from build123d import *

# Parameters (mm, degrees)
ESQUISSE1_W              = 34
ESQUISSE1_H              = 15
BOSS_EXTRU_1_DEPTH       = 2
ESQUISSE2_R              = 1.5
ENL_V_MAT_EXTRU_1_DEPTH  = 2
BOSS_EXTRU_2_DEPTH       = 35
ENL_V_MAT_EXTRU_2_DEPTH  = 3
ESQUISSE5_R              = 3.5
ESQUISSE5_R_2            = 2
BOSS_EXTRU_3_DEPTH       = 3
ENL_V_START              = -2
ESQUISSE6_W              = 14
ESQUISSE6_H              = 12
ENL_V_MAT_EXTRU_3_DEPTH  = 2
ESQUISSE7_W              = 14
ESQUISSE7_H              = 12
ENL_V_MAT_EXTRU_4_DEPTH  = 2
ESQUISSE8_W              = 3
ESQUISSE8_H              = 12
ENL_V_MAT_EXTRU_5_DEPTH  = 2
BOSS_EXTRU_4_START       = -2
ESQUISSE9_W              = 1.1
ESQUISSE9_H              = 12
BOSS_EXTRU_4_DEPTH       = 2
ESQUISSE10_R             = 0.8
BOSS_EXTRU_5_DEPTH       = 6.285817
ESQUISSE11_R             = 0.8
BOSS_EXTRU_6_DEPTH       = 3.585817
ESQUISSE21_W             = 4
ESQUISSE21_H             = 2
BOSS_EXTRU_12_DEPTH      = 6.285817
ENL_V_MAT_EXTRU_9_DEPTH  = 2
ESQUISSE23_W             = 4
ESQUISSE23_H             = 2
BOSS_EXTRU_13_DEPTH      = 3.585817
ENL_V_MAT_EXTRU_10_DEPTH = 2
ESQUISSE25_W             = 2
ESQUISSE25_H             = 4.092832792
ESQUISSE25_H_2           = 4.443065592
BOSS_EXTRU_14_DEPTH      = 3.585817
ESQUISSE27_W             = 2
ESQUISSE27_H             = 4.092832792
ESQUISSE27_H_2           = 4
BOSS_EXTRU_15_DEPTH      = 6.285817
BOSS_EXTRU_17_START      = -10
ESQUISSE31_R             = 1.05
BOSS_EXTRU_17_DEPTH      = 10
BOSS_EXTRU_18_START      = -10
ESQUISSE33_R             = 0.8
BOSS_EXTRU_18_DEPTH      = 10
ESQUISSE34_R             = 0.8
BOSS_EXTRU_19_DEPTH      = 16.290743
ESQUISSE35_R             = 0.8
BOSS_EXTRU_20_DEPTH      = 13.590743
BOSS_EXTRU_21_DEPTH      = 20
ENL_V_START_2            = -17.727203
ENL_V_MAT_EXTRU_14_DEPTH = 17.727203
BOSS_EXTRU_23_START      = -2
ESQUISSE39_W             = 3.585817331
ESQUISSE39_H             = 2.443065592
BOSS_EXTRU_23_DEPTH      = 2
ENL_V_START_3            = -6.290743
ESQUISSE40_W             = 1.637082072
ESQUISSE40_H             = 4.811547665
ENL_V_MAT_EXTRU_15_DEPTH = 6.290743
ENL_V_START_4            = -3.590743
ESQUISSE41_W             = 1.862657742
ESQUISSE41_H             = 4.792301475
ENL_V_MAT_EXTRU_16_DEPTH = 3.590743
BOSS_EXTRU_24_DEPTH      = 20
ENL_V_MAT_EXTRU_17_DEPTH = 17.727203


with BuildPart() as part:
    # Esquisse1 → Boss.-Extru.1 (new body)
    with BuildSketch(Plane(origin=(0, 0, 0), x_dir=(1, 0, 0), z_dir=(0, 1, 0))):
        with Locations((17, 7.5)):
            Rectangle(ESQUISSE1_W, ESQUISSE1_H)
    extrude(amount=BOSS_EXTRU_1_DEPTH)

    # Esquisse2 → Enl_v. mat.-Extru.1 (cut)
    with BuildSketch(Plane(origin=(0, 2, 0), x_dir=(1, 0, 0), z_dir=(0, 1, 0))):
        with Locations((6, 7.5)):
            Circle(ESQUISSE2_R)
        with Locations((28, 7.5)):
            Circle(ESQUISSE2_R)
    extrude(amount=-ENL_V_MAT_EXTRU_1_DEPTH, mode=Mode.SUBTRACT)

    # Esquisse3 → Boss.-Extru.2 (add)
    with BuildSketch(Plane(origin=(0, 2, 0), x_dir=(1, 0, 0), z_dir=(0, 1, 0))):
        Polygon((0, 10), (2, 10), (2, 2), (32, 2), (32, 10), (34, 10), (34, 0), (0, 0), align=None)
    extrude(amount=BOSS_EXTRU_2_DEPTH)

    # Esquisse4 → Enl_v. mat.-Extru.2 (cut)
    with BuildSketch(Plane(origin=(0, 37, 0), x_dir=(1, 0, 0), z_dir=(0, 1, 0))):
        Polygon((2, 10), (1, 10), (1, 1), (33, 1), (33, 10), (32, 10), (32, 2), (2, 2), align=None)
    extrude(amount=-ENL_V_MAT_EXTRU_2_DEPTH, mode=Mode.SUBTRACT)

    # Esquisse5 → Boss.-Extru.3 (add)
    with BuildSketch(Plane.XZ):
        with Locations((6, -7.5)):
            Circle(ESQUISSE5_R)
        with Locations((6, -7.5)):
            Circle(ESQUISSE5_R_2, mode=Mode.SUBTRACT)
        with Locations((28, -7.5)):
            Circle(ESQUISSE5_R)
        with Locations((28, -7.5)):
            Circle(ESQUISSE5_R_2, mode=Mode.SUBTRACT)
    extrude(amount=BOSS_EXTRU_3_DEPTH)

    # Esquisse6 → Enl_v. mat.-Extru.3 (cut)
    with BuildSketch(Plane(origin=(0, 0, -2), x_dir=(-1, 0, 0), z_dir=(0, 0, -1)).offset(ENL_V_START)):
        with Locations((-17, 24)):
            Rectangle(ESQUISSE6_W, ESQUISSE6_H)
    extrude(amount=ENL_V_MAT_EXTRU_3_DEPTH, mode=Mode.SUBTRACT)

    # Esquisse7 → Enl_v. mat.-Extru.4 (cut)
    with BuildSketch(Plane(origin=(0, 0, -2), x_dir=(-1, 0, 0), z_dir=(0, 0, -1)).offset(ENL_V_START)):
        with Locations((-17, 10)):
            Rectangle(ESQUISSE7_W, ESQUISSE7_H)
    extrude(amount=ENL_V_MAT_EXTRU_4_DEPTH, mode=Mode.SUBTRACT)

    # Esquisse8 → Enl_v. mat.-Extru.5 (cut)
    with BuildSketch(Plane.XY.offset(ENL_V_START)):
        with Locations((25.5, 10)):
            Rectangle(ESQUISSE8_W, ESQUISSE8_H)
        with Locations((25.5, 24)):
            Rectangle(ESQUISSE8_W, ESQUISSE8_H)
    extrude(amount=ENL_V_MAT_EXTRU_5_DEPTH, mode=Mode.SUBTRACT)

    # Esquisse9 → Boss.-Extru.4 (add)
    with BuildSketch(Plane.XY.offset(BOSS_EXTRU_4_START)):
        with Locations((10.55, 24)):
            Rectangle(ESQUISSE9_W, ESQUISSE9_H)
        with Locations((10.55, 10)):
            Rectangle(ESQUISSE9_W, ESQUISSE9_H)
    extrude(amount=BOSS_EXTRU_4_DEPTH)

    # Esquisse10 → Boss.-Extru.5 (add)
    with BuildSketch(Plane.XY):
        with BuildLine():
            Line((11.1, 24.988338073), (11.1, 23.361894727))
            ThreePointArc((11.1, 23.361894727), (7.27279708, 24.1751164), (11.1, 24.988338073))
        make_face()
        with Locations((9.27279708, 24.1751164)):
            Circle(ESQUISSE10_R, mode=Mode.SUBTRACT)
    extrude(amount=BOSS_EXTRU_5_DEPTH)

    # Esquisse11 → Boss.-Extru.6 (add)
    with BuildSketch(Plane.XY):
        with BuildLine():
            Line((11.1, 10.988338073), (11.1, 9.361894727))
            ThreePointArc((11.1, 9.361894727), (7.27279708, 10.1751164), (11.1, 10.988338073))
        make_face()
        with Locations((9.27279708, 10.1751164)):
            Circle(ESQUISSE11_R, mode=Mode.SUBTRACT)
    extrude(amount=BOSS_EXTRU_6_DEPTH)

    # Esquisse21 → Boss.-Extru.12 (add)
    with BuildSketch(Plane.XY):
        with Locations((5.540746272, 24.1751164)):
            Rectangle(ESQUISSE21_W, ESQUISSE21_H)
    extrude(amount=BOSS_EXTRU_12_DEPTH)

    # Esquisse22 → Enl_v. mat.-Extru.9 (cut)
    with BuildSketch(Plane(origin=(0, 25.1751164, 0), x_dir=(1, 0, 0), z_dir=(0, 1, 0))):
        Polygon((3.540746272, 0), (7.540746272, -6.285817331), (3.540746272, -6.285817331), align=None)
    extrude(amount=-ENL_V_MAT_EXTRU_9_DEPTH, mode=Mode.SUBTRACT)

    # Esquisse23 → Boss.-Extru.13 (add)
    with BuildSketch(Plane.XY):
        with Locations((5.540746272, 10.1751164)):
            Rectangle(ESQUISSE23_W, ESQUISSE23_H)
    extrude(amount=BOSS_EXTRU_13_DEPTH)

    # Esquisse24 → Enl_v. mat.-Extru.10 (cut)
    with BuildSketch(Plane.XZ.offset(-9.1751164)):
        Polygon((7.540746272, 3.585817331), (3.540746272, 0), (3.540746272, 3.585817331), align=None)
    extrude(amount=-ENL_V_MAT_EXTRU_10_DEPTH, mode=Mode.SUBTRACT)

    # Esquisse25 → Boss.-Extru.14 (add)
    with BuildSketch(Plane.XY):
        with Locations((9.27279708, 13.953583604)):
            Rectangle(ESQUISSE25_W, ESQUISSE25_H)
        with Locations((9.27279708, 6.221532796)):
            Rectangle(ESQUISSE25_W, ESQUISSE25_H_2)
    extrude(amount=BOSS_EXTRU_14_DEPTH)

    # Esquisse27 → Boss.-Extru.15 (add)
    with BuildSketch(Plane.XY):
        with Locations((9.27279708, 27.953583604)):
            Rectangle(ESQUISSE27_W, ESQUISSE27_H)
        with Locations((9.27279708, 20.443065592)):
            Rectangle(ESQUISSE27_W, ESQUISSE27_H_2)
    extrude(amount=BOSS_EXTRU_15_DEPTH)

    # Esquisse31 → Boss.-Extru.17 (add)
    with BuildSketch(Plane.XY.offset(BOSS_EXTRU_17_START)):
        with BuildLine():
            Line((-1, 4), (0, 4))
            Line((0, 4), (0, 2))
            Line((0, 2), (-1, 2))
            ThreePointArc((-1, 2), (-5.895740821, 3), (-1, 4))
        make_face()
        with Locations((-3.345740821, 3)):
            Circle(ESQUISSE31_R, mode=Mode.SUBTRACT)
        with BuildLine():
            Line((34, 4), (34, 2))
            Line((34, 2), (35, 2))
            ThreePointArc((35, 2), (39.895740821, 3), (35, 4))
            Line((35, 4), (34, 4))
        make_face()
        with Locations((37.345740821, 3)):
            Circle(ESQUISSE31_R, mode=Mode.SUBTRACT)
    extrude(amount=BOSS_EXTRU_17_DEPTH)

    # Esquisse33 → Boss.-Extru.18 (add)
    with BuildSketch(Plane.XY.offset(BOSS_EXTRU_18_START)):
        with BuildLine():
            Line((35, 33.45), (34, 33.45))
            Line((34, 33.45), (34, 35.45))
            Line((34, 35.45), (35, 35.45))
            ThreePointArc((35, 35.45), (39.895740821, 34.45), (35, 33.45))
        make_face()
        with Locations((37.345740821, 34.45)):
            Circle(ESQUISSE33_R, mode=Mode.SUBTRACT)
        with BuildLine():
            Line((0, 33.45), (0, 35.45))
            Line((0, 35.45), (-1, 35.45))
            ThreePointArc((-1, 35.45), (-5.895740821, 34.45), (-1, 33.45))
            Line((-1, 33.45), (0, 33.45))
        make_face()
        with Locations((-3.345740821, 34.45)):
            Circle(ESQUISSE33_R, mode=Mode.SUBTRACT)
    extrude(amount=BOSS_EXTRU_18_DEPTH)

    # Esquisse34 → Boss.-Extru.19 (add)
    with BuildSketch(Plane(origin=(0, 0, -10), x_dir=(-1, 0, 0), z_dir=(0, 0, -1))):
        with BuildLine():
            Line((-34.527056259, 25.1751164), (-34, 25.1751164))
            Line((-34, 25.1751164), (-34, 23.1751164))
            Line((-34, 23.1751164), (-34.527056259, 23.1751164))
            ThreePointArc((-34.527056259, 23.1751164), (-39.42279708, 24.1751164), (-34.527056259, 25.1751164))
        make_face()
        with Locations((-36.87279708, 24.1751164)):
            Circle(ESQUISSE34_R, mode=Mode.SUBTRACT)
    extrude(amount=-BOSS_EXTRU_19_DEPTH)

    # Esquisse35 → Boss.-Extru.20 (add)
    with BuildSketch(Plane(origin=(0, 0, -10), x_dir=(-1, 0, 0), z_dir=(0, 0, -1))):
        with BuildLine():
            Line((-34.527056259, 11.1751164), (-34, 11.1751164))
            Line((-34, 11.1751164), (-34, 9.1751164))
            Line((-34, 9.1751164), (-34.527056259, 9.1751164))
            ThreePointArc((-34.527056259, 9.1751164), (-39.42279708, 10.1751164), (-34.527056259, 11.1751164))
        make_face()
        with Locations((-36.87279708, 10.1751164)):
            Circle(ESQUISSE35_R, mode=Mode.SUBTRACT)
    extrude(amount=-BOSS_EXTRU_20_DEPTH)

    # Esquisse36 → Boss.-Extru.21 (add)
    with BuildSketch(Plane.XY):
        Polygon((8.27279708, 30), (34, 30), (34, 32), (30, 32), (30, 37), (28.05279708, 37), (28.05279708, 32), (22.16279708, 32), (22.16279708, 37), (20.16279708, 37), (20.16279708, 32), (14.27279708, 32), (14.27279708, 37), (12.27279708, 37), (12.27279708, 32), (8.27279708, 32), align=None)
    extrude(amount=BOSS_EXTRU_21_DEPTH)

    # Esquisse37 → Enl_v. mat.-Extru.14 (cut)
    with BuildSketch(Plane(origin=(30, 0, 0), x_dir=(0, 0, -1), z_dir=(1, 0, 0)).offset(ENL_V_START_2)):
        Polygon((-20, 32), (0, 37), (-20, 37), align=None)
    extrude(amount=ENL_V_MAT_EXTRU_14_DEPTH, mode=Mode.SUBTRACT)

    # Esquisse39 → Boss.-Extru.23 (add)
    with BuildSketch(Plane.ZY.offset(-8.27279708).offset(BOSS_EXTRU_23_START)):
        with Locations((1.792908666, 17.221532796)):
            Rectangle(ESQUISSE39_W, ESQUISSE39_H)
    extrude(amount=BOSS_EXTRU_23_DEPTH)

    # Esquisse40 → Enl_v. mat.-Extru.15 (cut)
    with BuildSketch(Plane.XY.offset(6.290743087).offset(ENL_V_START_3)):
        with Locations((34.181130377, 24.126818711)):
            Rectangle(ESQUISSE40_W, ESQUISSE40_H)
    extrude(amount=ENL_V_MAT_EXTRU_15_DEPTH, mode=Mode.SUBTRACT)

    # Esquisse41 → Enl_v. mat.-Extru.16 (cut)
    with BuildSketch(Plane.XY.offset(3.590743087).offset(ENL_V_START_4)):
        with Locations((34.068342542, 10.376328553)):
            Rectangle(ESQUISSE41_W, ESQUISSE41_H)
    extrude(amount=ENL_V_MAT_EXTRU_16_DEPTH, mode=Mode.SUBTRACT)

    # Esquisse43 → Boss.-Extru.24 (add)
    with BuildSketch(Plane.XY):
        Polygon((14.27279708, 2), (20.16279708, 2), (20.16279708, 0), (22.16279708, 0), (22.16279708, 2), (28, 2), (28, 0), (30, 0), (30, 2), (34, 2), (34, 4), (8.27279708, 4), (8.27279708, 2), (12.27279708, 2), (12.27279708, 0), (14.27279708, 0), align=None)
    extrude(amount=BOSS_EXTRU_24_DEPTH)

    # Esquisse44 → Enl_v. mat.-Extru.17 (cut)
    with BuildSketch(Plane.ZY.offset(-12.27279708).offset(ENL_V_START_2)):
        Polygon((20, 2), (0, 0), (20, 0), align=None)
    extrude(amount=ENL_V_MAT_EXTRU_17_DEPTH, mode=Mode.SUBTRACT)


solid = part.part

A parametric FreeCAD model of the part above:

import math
import FreeCAD as App
import Part
import Sketcher


def add_polygon(sketch, points):
    """Adds a closed chain of lines whose ends are joined by coincident constraints."""
    first, n = sketch.GeometryCount, len(points)
    for a, b in zip(points, points[1:] + points[:1]):
        sketch.addGeometry(Part.LineSegment(App.Vector(*a, 0), App.Vector(*b, 0)), False)
    for i in range(n):
        sketch.addConstraint(Sketcher.Constraint("Coincident", first + i, 2, first + (i + 1) % n, 1))

doc = App.newDocument("Part")
body = doc.addObject("PartDesign::Body", "Body")

# Sketch on XZ plane
sketch1 = body.newObject("Sketcher::SketchObject", "Sketch")
sketch1.AttachmentSupport = (doc.getObject("XZ_Plane"), [""])
sketch1.MapMode = "FlatFace"
add_polygon(sketch1, [(0, -15), (0, 0), (34, 0), (34, -15)])  # lines 0-3
sketch1.addConstraint(Sketcher.Constraint("Vertical", 0))
sketch1.addConstraint(Sketcher.Constraint("Horizontal", 1))
sketch1.addConstraint(Sketcher.Constraint("Vertical", 2))
sketch1.addConstraint(Sketcher.Constraint("Horizontal", 3))
sketch1.addConstraint(Sketcher.Constraint("Coincident", 0, 2, -1, 1))
sketch1.addConstraint(Sketcher.Constraint("DistanceX", 1, 1, 1, 2, 34.0))
sketch1.addConstraint(Sketcher.Constraint("DistanceY", 0, 1, 0, 2, 15.0))
pad1 = body.newObject("PartDesign::Pad", "Pad")
pad1.Profile = sketch1
pad1.Length = 2
pad1.Reversed = True

# Sketch on XZ plane
sketch2 = body.newObject("Sketcher::SketchObject", "Sketch001")
sketch2.AttachmentSupport = (doc.getObject("XZ_Plane"), [""])
sketch2.MapMode = "FlatFace"
sketch2.AttachmentOffset = App.Placement(App.Vector(0, 0, -2), App.Rotation())
sketch2.addGeometry(Part.Circle(App.Vector(6, -7.5, 0), App.Vector(0, 0, 1), 1.5), False)
sketch2.addGeometry(Part.Circle(App.Vector(28, -7.5, 0), App.Vector(0, 0, 1), 1.5), False)
sketch2.addConstraint(Sketcher.Constraint("Equal", 0, 1))
sketch2.addConstraint(Sketcher.Constraint("Horizontal", 0, 3, 1, 3))
sketch2.addConstraint(Sketcher.Constraint("Diameter", 0, 3.0))
sketch2.addConstraint(Sketcher.Constraint("DistanceX", -1, 1, 0, 3, 6.0))
sketch2.addConstraint(Sketcher.Constraint("DistanceX", -1, 1, 1, 3, 28.0))
sketch2.addConstraint(Sketcher.Constraint("DistanceY", 0, 3, -1, 1, 7.5))
pocket1 = body.newObject("PartDesign::Pocket", "Pocket")
pocket1.Profile = sketch2
pocket1.Length = 2
pocket1.Reversed = True

# Sketch on XZ plane
sketch3 = body.newObject("Sketcher::SketchObject", "Sketch002")
sketch3.AttachmentSupport = (doc.getObject("XZ_Plane"), [""])
sketch3.MapMode = "FlatFace"
sketch3.AttachmentOffset = App.Placement(App.Vector(0, 0, -2), App.Rotation())
add_polygon(sketch3, [(2, -10), (0, -10), (0, 0), (34, 0), (34, -10), (32, -10), (32, -2), (2, -2)])  # lines 0-7
sketch3.addConstraint(Sketcher.Constraint("Horizontal", 0))
sketch3.addConstraint(Sketcher.Constraint("Vertical", 1))
sketch3.addConstraint(Sketcher.Constraint("Horizontal", 2))
sketch3.addConstraint(Sketcher.Constraint("Vertical", 3))
sketch3.addConstraint(Sketcher.Constraint("Horizontal", 4))
sketch3.addConstraint(Sketcher.Constraint("Vertical", 5))
sketch3.addConstraint(Sketcher.Constraint("Horizontal", 6))
sketch3.addConstraint(Sketcher.Constraint("Vertical", 7))
sketch3.addConstraint(Sketcher.Constraint("Coincident", 1, 2, -1, 1))
sketch3.addConstraint(Sketcher.Constraint("Horizontal", 0, 2, 3, 2))
sketch3.addConstraint(Sketcher.Constraint("Equal", 0, 4))
sketch3.addConstraint(Sketcher.Constraint("DistanceX", 0, 2, 0, 1, 2.0))
sketch3.addConstraint(Sketcher.Constraint("DistanceX", 2, 1, 2, 2, 34.0))
sketch3.addConstraint(Sketcher.Constraint("DistanceY", 1, 1, 1, 2, 10.0))
sketch3.addConstraint(Sketcher.Constraint("DistanceY", 5, 1, 5, 2, 8.0))
pad2 = body.newObject("PartDesign::Pad", "Pad001")
pad2.Profile = sketch3
pad2.Length = 35
pad2.Reversed = True

# Sketch on XZ plane
sketch4 = body.newObject("Sketcher::SketchObject", "Sketch003")
sketch4.AttachmentSupport = (doc.getObject("XZ_Plane"), [""])
sketch4.MapMode = "FlatFace"
sketch4.AttachmentOffset = App.Placement(App.Vector(0, 0, -37), App.Rotation())
add_polygon(sketch4, [(2, -10), (1, -10), (1, -1), (33, -1), (33, -10), (32, -10), (32, -2), (2, -2)])  # lines 0-7
sketch4.addConstraint(Sketcher.Constraint("Horizontal", 0))
sketch4.addConstraint(Sketcher.Constraint("Vertical", 1))
sketch4.addConstraint(Sketcher.Constraint("Horizontal", 2))
sketch4.addConstraint(Sketcher.Constraint("Vertical", 3))
sketch4.addConstraint(Sketcher.Constraint("Horizontal", 4))
sketch4.addConstraint(Sketcher.Constraint("Vertical", 5))
sketch4.addConstraint(Sketcher.Constraint("Horizontal", 6))
sketch4.addConstraint(Sketcher.Constraint("Vertical", 7))
sketch4.addConstraint(Sketcher.Constraint("Horizontal", 0, 2, 3, 2))
sketch4.addConstraint(Sketcher.Constraint("Equal", 0, 4))
sketch4.addConstraint(Sketcher.Constraint("DistanceX", 0, 2, 0, 1, 1.0))
sketch4.addConstraint(Sketcher.Constraint("DistanceX", 2, 1, 2, 2, 32.0))
sketch4.addConstraint(Sketcher.Constraint("DistanceY", 1, 1, 1, 2, 9.0))
sketch4.addConstraint(Sketcher.Constraint("DistanceY", 5, 1, 5, 2, 8.0))
sketch4.addConstraint(Sketcher.Constraint("DistanceX", -1, 1, 0, 2, 1.0))
sketch4.addConstraint(Sketcher.Constraint("DistanceY", 0, 2, -1, 1, 10.0))
pocket2 = body.newObject("PartDesign::Pocket", "Pocket001")
pocket2.Profile = sketch4
pocket2.Length = 3
pocket2.Reversed = True

# Sketch on XZ plane
sketch5 = body.newObject("Sketcher::SketchObject", "Sketch004")
sketch5.AttachmentSupport = (doc.getObject("XZ_Plane"), [""])
sketch5.MapMode = "FlatFace"
sketch5.addGeometry(Part.Circle(App.Vector(6, -7.5, 0), App.Vector(0, 0, 1), 3.5), False)
sketch5.addGeometry(Part.Circle(App.Vector(6, -7.5, 0), App.Vector(0, 0, 1), 2), False)
sketch5.addGeometry(Part.Circle(App.Vector(28, -7.5, 0), App.Vector(0, 0, 1), 3.5), False)
sketch5.addGeometry(Part.Circle(App.Vector(28, -7.5, 0), App.Vector(0, 0, 1), 2), False)
sketch5.addConstraint(Sketcher.Constraint("Coincident", 1, 3, 0, 3))
sketch5.addConstraint(Sketcher.Constraint("Coincident", 3, 3, 2, 3))
sketch5.addConstraint(Sketcher.Constraint("Equal", 0, 2))
sketch5.addConstraint(Sketcher.Constraint("Equal", 1, 3))
sketch5.addConstraint(Sketcher.Constraint("Horizontal", 1, 3, 2, 3))
sketch5.addConstraint(Sketcher.Constraint("Diameter", 0, 7.0))
sketch5.addConstraint(Sketcher.Constraint("Diameter", 1, 4.0))
sketch5.addConstraint(Sketcher.Constraint("DistanceX", -1, 1, 0, 3, 6.0))
sketch5.addConstraint(Sketcher.Constraint("DistanceX", -1, 1, 2, 3, 28.0))
sketch5.addConstraint(Sketcher.Constraint("DistanceY", 0, 3, -1, 1, 7.5))
pad3 = body.newObject("PartDesign::Pad", "Pad002")
pad3.Profile = sketch5
pad3.Length = 3

# Sketch on XY plane
sketch6 = body.newObject("Sketcher::SketchObject", "Sketch005")
sketch6.AttachmentSupport = (doc.getObject("XY_Plane"), [""])
sketch6.MapMode = "FlatFace"
add_polygon(sketch6, [(24, 30), (24, 18), (10, 18), (10, 30)])  # lines 0-3
sketch6.addConstraint(Sketcher.Constraint("Vertical", 0))
sketch6.addConstraint(Sketcher.Constraint("Horizontal", 1))
sketch6.addConstraint(Sketcher.Constraint("Vertical", 2))
sketch6.addConstraint(Sketcher.Constraint("Horizontal", 3))
sketch6.addConstraint(Sketcher.Constraint("DistanceX", 1, 2, 1, 1, 14.0))
sketch6.addConstraint(Sketcher.Constraint("DistanceY", 0, 2, 0, 1, 12.0))
sketch6.addConstraint(Sketcher.Constraint("DistanceX", -1, 1, 0, 2, 24.0))
sketch6.addConstraint(Sketcher.Constraint("DistanceY", -1, 1, 0, 2, 18.0))
pocket3 = body.newObject("PartDesign::Pocket", "Pocket002")
pocket3.Profile = sketch6
pocket3.Length = 2

# Sketch on XY plane
sketch7 = body.newObject("Sketcher::SketchObject", "Sketch006")
sketch7.AttachmentSupport = (doc.getObject("XY_Plane"), [""])
sketch7.MapMode = "FlatFace"
add_polygon(sketch7, [(24, 16), (24, 4), (10, 4), (10, 16)])  # lines 0-3
sketch7.addConstraint(Sketcher.Constraint("Vertical", 0))
sketch7.addConstraint(Sketcher.Constraint("Horizontal", 1))
sketch7.addConstraint(Sketcher.Constraint("Vertical", 2))
sketch7.addConstraint(Sketcher.Constraint("Horizontal", 3))
sketch7.addConstraint(Sketcher.Constraint("DistanceX", 1, 2, 1, 1, 14.0))
sketch7.addConstraint(Sketcher.Constraint("DistanceY", 0, 2, 0, 1, 12.0))
sketch7.addConstraint(Sketcher.Constraint("DistanceX", -1, 1, 0, 2, 24.0))
sketch7.addConstraint(Sketcher.Constraint("DistanceY", -1, 1, 0, 2, 4.0))
pocket4 = body.newObject("PartDesign::Pocket", "Pocket003")
pocket4.Profile = sketch7
pocket4.Length = 2

# Sketch on XY plane
sketch8 = body.newObject("Sketcher::SketchObject", "Sketch007")
sketch8.AttachmentSupport = (doc.getObject("XY_Plane"), [""])
sketch8.MapMode = "FlatFace"
sketch8.AttachmentOffset = App.Placement(App.Vector(0, 0, -2), App.Rotation())
add_polygon(sketch8, [(24, 16), (24, 4), (27, 4), (27, 16)])  # lines 0-3
add_polygon(sketch8, [(24, 30), (24, 18), (27, 18), (27, 30)])  # lines 4-7
sketch8.addConstraint(Sketcher.Constraint("Vertical", 0))
sketch8.addConstraint(Sketcher.Constraint("Horizontal", 1))
sketch8.addConstraint(Sketcher.Constraint("Vertical", 2))
sketch8.addConstraint(Sketcher.Constraint("Horizontal", 3))
sketch8.addConstraint(Sketcher.Constraint("Vertical", 4))
sketch8.addConstraint(Sketcher.Constraint("Horizontal", 5))
sketch8.addConstraint(Sketcher.Constraint("Vertical", 6))
sketch8.addConstraint(Sketcher.Constraint("Horizontal", 7))
sketch8.addConstraint(Sketcher.Constraint("Vertical", 3, 2, 4, 2))
sketch8.addConstraint(Sketcher.Constraint("Vertical", 2, 2, 5, 2))
sketch8.addConstraint(Sketcher.Constraint("Equal", 2, 4))
sketch8.addConstraint(Sketcher.Constraint("DistanceX", 1, 1, 1, 2, 3.0))
sketch8.addConstraint(Sketcher.Constraint("DistanceY", 0, 2, 0, 1, 12.0))
sketch8.addConstraint(Sketcher.Constraint("DistanceX", -1, 1, 0, 2, 24.0))
sketch8.addConstraint(Sketcher.Constraint("DistanceY", -1, 1, 0, 2, 4.0))
sketch8.addConstraint(Sketcher.Constraint("DistanceY", -1, 1, 4, 2, 18.0))
pocket5 = body.newObject("PartDesign::Pocket", "Pocket004")
pocket5.Profile = sketch8
pocket5.Length = 2
pocket5.Reversed = True

# Sketch on XY plane
sketch9 = body.newObject("Sketcher::SketchObject", "Sketch008")
sketch9.AttachmentSupport = (doc.getObject("XY_Plane"), [""])
sketch9.MapMode = "FlatFace"
sketch9.AttachmentOffset = App.Placement(App.Vector(0, 0, -2), App.Rotation())
add_polygon(sketch9, [(10, 30), (10, 18), (11.1, 18), (11.1, 30)])  # lines 0-3
add_polygon(sketch9, [(10, 16), (10, 4), (11.1, 4), (11.1, 16)])  # lines 4-7
sketch9.addConstraint(Sketcher.Constraint("Vertical", 0))
sketch9.addConstraint(Sketcher.Constraint("Horizontal", 1))
sketch9.addConstraint(Sketcher.Constraint("Vertical", 2))
sketch9.addConstraint(Sketcher.Constraint("Horizontal", 3))
sketch9.addConstraint(Sketcher.Constraint("Vertical", 4))
sketch9.addConstraint(Sketcher.Constraint("Horizontal", 5))
sketch9.addConstraint(Sketcher.Constraint("Vertical", 6))
sketch9.addConstraint(Sketcher.Constraint("Horizontal", 7))
sketch9.addConstraint(Sketcher.Constraint("Vertical", 3, 2, 4, 2))
sketch9.addConstraint(Sketcher.Constraint("Vertical", 2, 2, 5, 2))
sketch9.addConstraint(Sketcher.Constraint("Equal", 2, 4))
sketch9.addConstraint(Sketcher.Constraint("DistanceY", 0, 2, 0, 1, 12.0))
sketch9.addConstraint(Sketcher.Constraint("DistanceX", 1, 1, 1, 2, 1.1))
sketch9.addConstraint(Sketcher.Constraint("DistanceX", -1, 1, 0, 2, 10.0))
sketch9.addConstraint(Sketcher.Constraint("DistanceY", -1, 1, 0, 2, 18.0))
sketch9.addConstraint(Sketcher.Constraint("DistanceY", -1, 1, 4, 2, 4.0))
pad4 = body.newObject("PartDesign::Pad", "Pad003")
pad4.Profile = sketch9
pad4.Length = 2

# Sketch on XY plane
sketch10 = body.newObject("Sketcher::SketchObject", "Sketch009")
sketch10.AttachmentSupport = (doc.getObject("XY_Plane"), [""])
sketch10.MapMode = "FlatFace"
sketch10.addGeometry(Part.LineSegment(App.Vector(11.1, 23.4, 0), App.Vector(11.1, 25, 0)), False)
sketch10.addGeometry(Part.ArcOfCircle(Part.Circle(App.Vector(9.3, 24.2, 0), App.Vector(0, 0, 1), 2), math.radians(24), math.radians(336)), False)
sketch10.addGeometry(Part.Circle(App.Vector(9.3, 24.2, 0), App.Vector(0, 0, 1), 0.8), False)
sketch10.addConstraint(Sketcher.Constraint("Coincident", 0, 1, 1, 2))
sketch10.addConstraint(Sketcher.Constraint("Coincident", 1, 1, 0, 2))
sketch10.addConstraint(Sketcher.Constraint("Vertical", 0))
sketch10.addConstraint(Sketcher.Constraint("Coincident", 2, 3, 1, 3))
sketch10.addConstraint(Sketcher.Constraint("Radius", 1, 2.0))
sketch10.addConstraint(Sketcher.Constraint("Diameter", 2, 1.6))
sketch10.addConstraint(Sketcher.Constraint("DistanceX", -1, 1, 0, 1, 11.1))
sketch10.addConstraint(Sketcher.Constraint("DistanceY", 0, 1, 0, 2, 1.626443))
sketch10.addConstraint(Sketcher.Constraint("DistanceY", -1, 1, 1, 1, 24.988338))
pad5 = body.newObject("PartDesign::Pad", "Pad004")
pad5.Profile = sketch10
pad5.Length = 6.285817

# Sketch on XY plane
sketch11 = body.newObject("Sketcher::SketchObject", "Sketch010")
sketch11.AttachmentSupport = (doc.getObject("XY_Plane"), [""])
sketch11.MapMode = "FlatFace"
sketch11.addGeometry(Part.LineSegment(App.Vector(11.1, 9.4, 0), App.Vector(11.1, 11, 0)), False)
sketch11.addGeometry(Part.ArcOfCircle(Part.Circle(App.Vector(9.3, 10.2, 0), App.Vector(0, 0, 1), 2), math.radians(24), math.radians(336)), False)
sketch11.addGeometry(Part.Circle(App.Vector(9.3, 10.2, 0), App.Vector(0, 0, 1), 0.8), False)
sketch11.addConstraint(Sketcher.Constraint("Coincident", 0, 1, 1, 2))
sketch11.addConstraint(Sketcher.Constraint("Coincident", 1, 1, 0, 2))
sketch11.addConstraint(Sketcher.Constraint("Vertical", 0))
sketch11.addConstraint(Sketcher.Constraint("Coincident", 2, 3, 1, 3))
sketch11.addConstraint(Sketcher.Constraint("Radius", 1, 2.0))
sketch11.addConstraint(Sketcher.Constraint("Diameter", 2, 1.6))
sketch11.addConstraint(Sketcher.Constraint("DistanceX", -1, 1, 0, 1, 11.1))
sketch11.addConstraint(Sketcher.Constraint("DistanceY", 0, 1, 0, 2, 1.626443))
sketch11.addConstraint(Sketcher.Constraint("DistanceY", -1, 1, 1, 1, 10.988338))
pad6 = body.newObject("PartDesign::Pad", "Pad005")
pad6.Profile = sketch11
pad6.Length = 3.585817

# Sketch on XY plane
sketch12 = body.newObject("Sketcher::SketchObject", "Sketch011")
sketch12.AttachmentSupport = (doc.getObject("XY_Plane"), [""])
sketch12.MapMode = "FlatFace"
add_polygon(sketch12, [(3.5, 25.2), (3.5, 23.2), (7.5, 23.2), (7.5, 25.2)])  # lines 0-3
sketch12.addConstraint(Sketcher.Constraint("Vertical", 0))
sketch12.addConstraint(Sketcher.Constraint("Horizontal", 1))
sketch12.addConstraint(Sketcher.Constraint("Vertical", 2))
sketch12.addConstraint(Sketcher.Constraint("Horizontal", 3))
sketch12.addConstraint(Sketcher.Constraint("DistanceX", 1, 1, 1, 2, 4.0))
sketch12.addConstraint(Sketcher.Constraint("DistanceY", 0, 2, 0, 1, 2.0))
sketch12.addConstraint(Sketcher.Constraint("DistanceX", -1, 1, 0, 2, 3.540746))
sketch12.addConstraint(Sketcher.Constraint("DistanceY", -1, 1, 0, 2, 23.175116))
pad7 = body.newObject("PartDesign::Pad", "Pad006")
pad7.Profile = sketch12
pad7.Length = 6.285817

# Sketch on XZ plane
sketch13 = body.newObject("Sketcher::SketchObject", "Sketch012")
sketch13.AttachmentSupport = (doc.getObject("XZ_Plane"), [""])
sketch13.MapMode = "FlatFace"
sketch13.AttachmentOffset = App.Placement(App.Vector(0, 0, -25.175116), App.Rotation())
add_polygon(sketch13, [(7.5, 6.3), (3.5, 0), (3.5, 6.3)])  # lines 0-2
sketch13.addConstraint(Sketcher.Constraint("Vertical", 1))
sketch13.addConstraint(Sketcher.Constraint("Horizontal", 2))
sketch13.addConstraint(Sketcher.Constraint("PointOnObject", 0, 2, -1))
sketch13.addConstraint(Sketcher.Constraint("DistanceX", 2, 1, 2, 2, 4.0))
sketch13.addConstraint(Sketcher.Constraint("DistanceY", 1, 1, 1, 2, 6.285817))
sketch13.addConstraint(Sketcher.Constraint("DistanceX", -1, 1, 0, 2, 3.540746))
pocket6 = body.newObject("PartDesign::Pocket", "Pocket005")
pocket6.Profile = sketch13
pocket6.Length = 2
pocket6.Reversed = True

# Sketch on XY plane
sketch14 = body.newObject("Sketcher::SketchObject", "Sketch013")
sketch14.AttachmentSupport = (doc.getObject("XY_Plane"), [""])
sketch14.MapMode = "FlatFace"
add_polygon(sketch14, [(3.5, 11.2), (3.5, 9.2), (7.5, 9.2), (7.5, 11.2)])  # lines 0-3
sketch14.addConstraint(Sketcher.Constraint("Vertical", 0))
sketch14.addConstraint(Sketcher.Constraint("Horizontal", 1))
sketch14.addConstraint(Sketcher.Constraint("Vertical", 2))
sketch14.addConstraint(Sketcher.Constraint("Horizontal", 3))
sketch14.addConstraint(Sketcher.Constraint("DistanceX", 1, 1, 1, 2, 4.0))
sketch14.addConstraint(Sketcher.Constraint("DistanceY", 0, 2, 0, 1, 2.0))
sketch14.addConstraint(Sketcher.Constraint("DistanceX", -1, 1, 0, 2, 3.540746))
sketch14.addConstraint(Sketcher.Constraint("DistanceY", -1, 1, 0, 2, 9.175116))
pad8 = body.newObject("PartDesign::Pad", "Pad007")
pad8.Profile = sketch14
pad8.Length = 3.585817

# Sketch on XZ plane
sketch15 = body.newObject("Sketcher::SketchObject", "Sketch014")
sketch15.AttachmentSupport = (doc.getObject("XZ_Plane"), [""])
sketch15.MapMode = "FlatFace"
sketch15.AttachmentOffset = App.Placement(App.Vector(0, 0, -9.175116), App.Rotation())
add_polygon(sketch15, [(3.5, 0), (7.5, 3.6), (3.5, 3.6)])  # lines 0-2
sketch15.addConstraint(Sketcher.Constraint("Horizontal", 1))
sketch15.addConstraint(Sketcher.Constraint("Vertical", 2))
sketch15.addConstraint(Sketcher.Constraint("PointOnObject", 2, 2, -1))
sketch15.addConstraint(Sketcher.Constraint("DistanceX", 1, 2, 1, 1, 4.0))
sketch15.addConstraint(Sketcher.Constraint("DistanceY", 2, 2, 2, 1, 3.585817))
sketch15.addConstraint(Sketcher.Constraint("DistanceX", -1, 1, 0, 2, 7.540746))
pocket7 = body.newObject("PartDesign::Pocket", "Pocket006")
pocket7.Profile = sketch15
pocket7.Length = 2

# Sketch on XY plane
sketch16 = body.newObject("Sketcher::SketchObject", "Sketch015")
sketch16.AttachmentSupport = (doc.getObject("XY_Plane"), [""])
sketch16.MapMode = "FlatFace"
add_polygon(sketch16, [(8.3, 16), (8.3, 11.9), (10.3, 11.9), (10.3, 16)])  # lines 0-3
add_polygon(sketch16, [(8.3, 8.4), (8.3, 4), (10.3, 4), (10.3, 8.4)])  # lines 4-7
sketch16.addConstraint(Sketcher.Constraint("Vertical", 0))
sketch16.addConstraint(Sketcher.Constraint("Horizontal", 1))
sketch16.addConstraint(Sketcher.Constraint("Vertical", 2))
sketch16.addConstraint(Sketcher.Constraint("Horizontal", 3))
sketch16.addConstraint(Sketcher.Constraint("Vertical", 4))
sketch16.addConstraint(Sketcher.Constraint("Horizontal", 5))
sketch16.addConstraint(Sketcher.Constraint("Vertical", 6))
sketch16.addConstraint(Sketcher.Constraint("Horizontal", 7))
sketch16.addConstraint(Sketcher.Constraint("Vertical", 3, 2, 4, 2))
sketch16.addConstraint(Sketcher.Constraint("Vertical", 2, 2, 5, 2))
sketch16.addConstraint(Sketcher.Constraint("DistanceX", 1, 1, 1, 2, 2.0))
sketch16.addConstraint(Sketcher.Constraint("DistanceY", -1, 1, 2, 2, 16.0))
sketch16.addConstraint(Sketcher.Constraint("DistanceY", -1, 1, 4, 2, 4.0))
sketch16.addConstraint(Sketcher.Constraint("DistanceY", 6, 2, 1, 2, 3.464102))
sketch16.addConstraint(Sketcher.Constraint("DistanceY", 0, 2, 0, 1, 4.092833))
sketch16.addConstraint(Sketcher.Constraint("DistanceX", -1, 1, 0, 2, 8.272797))
pad9 = body.newObject("PartDesign::Pad", "Pad008")
pad9.Profile = sketch16
pad9.Length = 3.585817

# Sketch on XY plane
sketch17 = body.newObject("Sketcher::SketchObject", "Sketch016")
sketch17.AttachmentSupport = (doc.getObject("XY_Plane"), [""])
sketch17.MapMode = "FlatFace"
add_polygon(sketch17, [(8.3, 30), (8.3, 25.9), (10.3, 25.9), (10.3, 30)])  # lines 0-3
add_polygon(sketch17, [(8.3, 22.4), (8.3, 18.4), (10.3, 18.4), (10.3, 22.4)])  # lines 4-7
sketch17.addConstraint(Sketcher.Constraint("Vertical", 0))
sketch17.addConstraint(Sketcher.Constraint("Horizontal", 1))
sketch17.addConstraint(Sketcher.Constraint("Vertical", 2))
sketch17.addConstraint(Sketcher.Constraint("Horizontal", 3))
sketch17.addConstraint(Sketcher.Constraint("Vertical", 4))
sketch17.addConstraint(Sketcher.Constraint("Horizontal", 5))
sketch17.addConstraint(Sketcher.Constraint("Vertical", 6))
sketch17.addConstraint(Sketcher.Constraint("Horizontal", 7))
sketch17.addConstraint(Sketcher.Constraint("Vertical", 3, 2, 4, 2))
sketch17.addConstraint(Sketcher.Constraint("Vertical", 2, 2, 5, 2))
sketch17.addConstraint(Sketcher.Constraint("DistanceX", 1, 1, 1, 2, 2.0))
sketch17.addConstraint(Sketcher.Constraint("DistanceY", 4, 2, 4, 1, 4.0))
sketch17.addConstraint(Sketcher.Constraint("DistanceY", -1, 1, 2, 2, 30.0))
sketch17.addConstraint(Sketcher.Constraint("DistanceY", 4, 2, 0, 2, 7.464102))
sketch17.addConstraint(Sketcher.Constraint("DistanceY", 0, 2, 0, 1, 4.092833))
sketch17.addConstraint(Sketcher.Constraint("DistanceX", -1, 1, 0, 2, 8.272797))
pad10 = body.newObject("PartDesign::Pad", "Pad009")
pad10.Profile = sketch17
pad10.Length = 6.285817

# Sketch on XY plane
sketch18 = body.newObject("Sketcher::SketchObject", "Sketch017")
sketch18.AttachmentSupport = (doc.getObject("XY_Plane"), [""])
sketch18.MapMode = "FlatFace"
sketch18.AttachmentOffset = App.Placement(App.Vector(0, 0, -10), App.Rotation())
sketch18.addGeometry(Part.LineSegment(App.Vector(0, 4, 0), App.Vector(-1, 4, 0)), False)
sketch18.addGeometry(Part.ArcOfCircle(Part.Circle(App.Vector(-3.3, 3, 0), App.Vector(0, 0, 1), 2.5), math.radians(23), math.radians(337)), False)
sketch18.addGeometry(Part.LineSegment(App.Vector(-1, 2, 0), App.Vector(0, 2, 0)), False)
sketch18.addGeometry(Part.LineSegment(App.Vector(0, 2, 0), App.Vector(0, 4, 0)), False)
sketch18.addGeometry(Part.Circle(App.Vector(-3.3, 3, 0), App.Vector(0, 0, 1), 1.1), False)
sketch18.addGeometry(Part.LineSegment(App.Vector(34, 4, 0), App.Vector(34, 2, 0)), False)
sketch18.addGeometry(Part.LineSegment(App.Vector(34, 2, 0), App.Vector(35, 2, 0)), False)
sketch18.addGeometry(Part.ArcOfCircle(Part.Circle(App.Vector(37.3, 3, 0), App.Vector(0, 0, 1), 2.5), math.radians(-157), math.radians(157)), False)
sketch18.addGeometry(Part.LineSegment(App.Vector(35, 4, 0), App.Vector(34, 4, 0)), False)
sketch18.addGeometry(Part.Circle(App.Vector(37.3, 3, 0), App.Vector(0, 0, 1), 1.1), False)
sketch18.addConstraint(Sketcher.Constraint("Coincident", 0, 2, 1, 1))
sketch18.addConstraint(Sketcher.Constraint("Coincident", 1, 2, 2, 1))
sketch18.addConstraint(Sketcher.Constraint("Coincident", 2, 2, 3, 1))
sketch18.addConstraint(Sketcher.Constraint("Coincident", 3, 2, 0, 1))
sketch18.addConstraint(Sketcher.Constraint("Coincident", 5, 2, 6, 1))
sketch18.addConstraint(Sketcher.Constraint("Coincident", 6, 2, 7, 1))
sketch18.addConstraint(Sketcher.Constraint("Coincident", 7, 2, 8, 1))
sketch18.addConstraint(Sketcher.Constraint("Coincident", 8, 2, 5, 1))
sketch18.addConstraint(Sketcher.Constraint("Horizontal", 0))
sketch18.addConstraint(Sketcher.Constraint("Horizontal", 2))
sketch18.addConstraint(Sketcher.Constraint("Vertical", 3))
sketch18.addConstraint(Sketcher.Constraint("Vertical", 5))
sketch18.addConstraint(Sketcher.Constraint("Horizontal", 6))
sketch18.addConstraint(Sketcher.Constraint("Horizontal", 8))
sketch18.addConstraint(Sketcher.Constraint("Coincident", 4, 3, 1, 3))
sketch18.addConstraint(Sketcher.Constraint("Coincident", 9, 3, 7, 3))
sketch18.addConstraint(Sketcher.Constraint("Equal", 1, 7))
sketch18.addConstraint(Sketcher.Constraint("Equal", 4, 9))
sketch18.addConstraint(Sketcher.Constraint("PointOnObject", 2, 2, -2))
sketch18.addConstraint(Sketcher.Constraint("Horizontal", 4, 3, 7, 3))
sketch18.addConstraint(Sketcher.Constraint("Horizontal", 2, 2, 5, 2))
sketch18.addConstraint(Sketcher.Constraint("Horizontal", 3, 2, 7, 2))
sketch18.addConstraint(Sketcher.Constraint("Vertical", 0, 2, 1, 2))
sketch18.addConstraint(Sketcher.Constraint("Equal", 2, 6))
sketch18.addConstraint(Sketcher.Constraint("Diameter", 4, 2.1))
sketch18.addConstraint(Sketcher.Constraint("DistanceX", 0, 2, 0, 1, 1.0))
sketch18.addConstraint(Sketcher.Constraint("DistanceY", 3, 1, 3, 2, 2.0))
sketch18.addConstraint(Sketcher.Constraint("Radius", 1, 2.55))
sketch18.addConstraint(Sketcher.Constraint("DistanceY", -1, 1, 1, 3, 3.0))
sketch18.addConstraint(Sketcher.Constraint("DistanceX", -1, 1, 5, 2, 34.0))
pad11 = body.newObject("PartDesign::Pad", "Pad010")
pad11.Profile = sketch18
pad11.Length = 10

# Sketch on XY plane
sketch19 = body.newObject("Sketcher::SketchObject", "Sketch018")
sketch19.AttachmentSupport = (doc.getObject("XY_Plane"), [""])
sketch19.MapMode = "FlatFace"
sketch19.AttachmentOffset = App.Placement(App.Vector(0, 0, -10), App.Rotation())
sketch19.addGeometry(Part.LineSegment(App.Vector(34, 33.5, 0), App.Vector(35, 33.5, 0)), False)
sketch19.addGeometry(Part.ArcOfCircle(Part.Circle(App.Vector(37.3, 34.5, 0), App.Vector(0, 0, 1), 2.5), math.radians(-157), math.radians(157)), False)
sketch19.addGeometry(Part.LineSegment(App.Vector(35, 35.5, 0), App.Vector(34, 35.5, 0)), False)
sketch19.addGeometry(Part.LineSegment(App.Vector(34, 35.5, 0), App.Vector(34, 33.5, 0)), False)
sketch19.addGeometry(Part.Circle(App.Vector(37.3, 34.5, 0), App.Vector(0, 0, 1), 0.8), False)
sketch19.addGeometry(Part.LineSegment(App.Vector(0, 33.5, 0), App.Vector(0, 35.5, 0)), False)
sketch19.addGeometry(Part.LineSegment(App.Vector(0, 35.5, 0), App.Vector(-1, 35.5, 0)), False)
sketch19.addGeometry(Part.ArcOfCircle(Part.Circle(App.Vector(-3.3, 34.5, 0), App.Vector(0, 0, 1), 2.5), math.radians(23), math.radians(337)), False)
sketch19.addGeometry(Part.LineSegment(App.Vector(-1, 33.5, 0), App.Vector(0, 33.5, 0)), False)
sketch19.addGeometry(Part.Circle(App.Vector(-3.3, 34.5, 0), App.Vector(0, 0, 1), 0.8), False)
sketch19.addConstraint(Sketcher.Constraint("Coincident", 0, 2, 1, 1))
sketch19.addConstraint(Sketcher.Constraint("Coincident", 1, 2, 2, 1))
sketch19.addConstraint(Sketcher.Constraint("Coincident", 2, 2, 3, 1))
sketch19.addConstraint(Sketcher.Constraint("Coincident", 3, 2, 0, 1))
sketch19.addConstraint(Sketcher.Constraint("Coincident", 5, 2, 6, 1))
sketch19.addConstraint(Sketcher.Constraint("Coincident", 6, 2, 7, 1))
sketch19.addConstraint(Sketcher.Constraint("Coincident", 7, 2, 8, 1))
sketch19.addConstraint(Sketcher.Constraint("Coincident", 8, 2, 5, 1))
sketch19.addConstraint(Sketcher.Constraint("Horizontal", 0))
sketch19.addConstraint(Sketcher.Constraint("Horizontal", 2))
sketch19.addConstraint(Sketcher.Constraint("Vertical", 3))
sketch19.addConstraint(Sketcher.Constraint("Vertical", 5))
sketch19.addConstraint(Sketcher.Constraint("Horizontal", 6))
sketch19.addConstraint(Sketcher.Constraint("Horizontal", 8))
sketch19.addConstraint(Sketcher.Constraint("Coincident", 4, 3, 1, 3))
sketch19.addConstraint(Sketcher.Constraint("Coincident", 9, 3, 7, 3))
sketch19.addConstraint(Sketcher.Constraint("Equal", 1, 7))
sketch19.addConstraint(Sketcher.Constraint("Equal", 4, 9))
sketch19.addConstraint(Sketcher.Constraint("PointOnObject", 5, 2, -2))
sketch19.addConstraint(Sketcher.Constraint("Horizontal", 4, 3, 7, 3))
sketch19.addConstraint(Sketcher.Constraint("Horizontal", 2, 2, 5, 2))
sketch19.addConstraint(Sketcher.Constraint("Horizontal", 3, 2, 7, 2))
sketch19.addConstraint(Sketcher.Constraint("Vertical", 0, 2, 1, 2))
sketch19.addConstraint(Sketcher.Constraint("Equal", 2, 6))
sketch19.addConstraint(Sketcher.Constraint("Diameter", 4, 1.6))
sketch19.addConstraint(Sketcher.Constraint("DistanceX", 0, 1, 0, 2, 1.0))
sketch19.addConstraint(Sketcher.Constraint("DistanceY", 3, 2, 3, 1, 2.0))
sketch19.addConstraint(Sketcher.Constraint("Radius", 1, 2.55))
sketch19.addConstraint(Sketcher.Constraint("DistanceX", -1, 1, 0, 2, 35.0))
sketch19.addConstraint(Sketcher.Constraint("DistanceY", -1, 1, 1, 3, 34.45))
pad12 = body.newObject("PartDesign::Pad", "Pad011")
pad12.Profile = sketch19
pad12.Length = 10

# Sketch on XY plane
sketch20 = body.newObject("Sketcher::SketchObject", "Sketch019")
sketch20.AttachmentSupport = (doc.getObject("XY_Plane"), [""])
sketch20.MapMode = "FlatFace"
sketch20.AttachmentOffset = App.Placement(App.Vector(0, 0, -10), App.Rotation())
sketch20.addGeometry(Part.LineSegment(App.Vector(34, 25.2, 0), App.Vector(34.5, 25.2, 0)), False)
sketch20.addGeometry(Part.ArcOfCircle(Part.Circle(App.Vector(36.9, 24.2, 0), App.Vector(0, 0, 1), 2.5), math.radians(-157), math.radians(157)), False)
sketch20.addGeometry(Part.LineSegment(App.Vector(34.5, 23.2, 0), App.Vector(34, 23.2, 0)), False)
sketch20.addGeometry(Part.LineSegment(App.Vector(34, 23.2, 0), App.Vector(34, 25.2, 0)), False)
sketch20.addGeometry(Part.Circle(App.Vector(36.9, 24.2, 0), App.Vector(0, 0, 1), 0.8), False)
sketch20.addConstraint(Sketcher.Constraint("Coincident", 0, 2, 1, 2))
sketch20.addConstraint(Sketcher.Constraint("Coincident", 1, 1, 2, 1))
sketch20.addConstraint(Sketcher.Constraint("Coincident", 2, 2, 3, 1))
sketch20.addConstraint(Sketcher.Constraint("Coincident", 3, 2, 0, 1))
sketch20.addConstraint(Sketcher.Constraint("Horizontal", 0))
sketch20.addConstraint(Sketcher.Constraint("Horizontal", 2))
sketch20.addConstraint(Sketcher.Constraint("Vertical", 3))
sketch20.addConstraint(Sketcher.Constraint("Coincident", 4, 3, 1, 3))
sketch20.addConstraint(Sketcher.Constraint("Vertical", 0, 2, 1, 1))
sketch20.addConstraint(Sketcher.Constraint("Diameter", 4, 1.6))
sketch20.addConstraint(Sketcher.Constraint("DistanceY", 3, 1, 3, 2, 2.0))
sketch20.addConstraint(Sketcher.Constraint("Radius", 1, 2.55))
sketch20.addConstraint(Sketcher.Constraint("DistanceX", -1, 1, 2, 2, 34.0))
sketch20.addConstraint(Sketcher.Constraint("DistanceX", 0, 1, 0, 2, 0.527056))
sketch20.addConstraint(Sketcher.Constraint("DistanceY", -1, 1, 1, 3, 24.175116))
pad13 = body.newObject("PartDesign::Pad", "Pad012")
pad13.Profile = sketch20
pad13.Length = 16.290743

# Sketch on XY plane
sketch21 = body.newObject("Sketcher::SketchObject", "Sketch020")
sketch21.AttachmentSupport = (doc.getObject("XY_Plane"), [""])
sketch21.MapMode = "FlatFace"
sketch21.AttachmentOffset = App.Placement(App.Vector(0, 0, -10), App.Rotation())
sketch21.addGeometry(Part.LineSegment(App.Vector(34, 11.2, 0), App.Vector(34.5, 11.2, 0)), False)
sketch21.addGeometry(Part.ArcOfCircle(Part.Circle(App.Vector(36.9, 10.2, 0), App.Vector(0, 0, 1), 2.5), math.radians(-157), math.radians(157)), False)
sketch21.addGeometry(Part.LineSegment(App.Vector(34.5, 9.2, 0), App.Vector(34, 9.2, 0)), False)
sketch21.addGeometry(Part.LineSegment(App.Vector(34, 9.2, 0), App.Vector(34, 11.2, 0)), False)
sketch21.addGeometry(Part.Circle(App.Vector(36.9, 10.2, 0), App.Vector(0, 0, 1), 0.8), False)
sketch21.addConstraint(Sketcher.Constraint("Coincident", 0, 2, 1, 2))
sketch21.addConstraint(Sketcher.Constraint("Coincident", 1, 1, 2, 1))
sketch21.addConstraint(Sketcher.Constraint("Coincident", 2, 2, 3, 1))
sketch21.addConstraint(Sketcher.Constraint("Coincident", 3, 2, 0, 1))
sketch21.addConstraint(Sketcher.Constraint("Horizontal", 0))
sketch21.addConstraint(Sketcher.Constraint("Horizontal", 2))
sketch21.addConstraint(Sketcher.Constraint("Vertical", 3))
sketch21.addConstraint(Sketcher.Constraint("Coincident", 4, 3, 1, 3))
sketch21.addConstraint(Sketcher.Constraint("Vertical", 0, 2, 1, 1))
sketch21.addConstraint(Sketcher.Constraint("Diameter", 4, 1.6))
sketch21.addConstraint(Sketcher.Constraint("DistanceY", 3, 1, 3, 2, 2.0))
sketch21.addConstraint(Sketcher.Constraint("Radius", 1, 2.55))
sketch21.addConstraint(Sketcher.Constraint("DistanceX", -1, 1, 2, 2, 34.0))
sketch21.addConstraint(Sketcher.Constraint("DistanceX", 0, 1, 0, 2, 0.527056))
sketch21.addConstraint(Sketcher.Constraint("DistanceY", -1, 1, 1, 3, 10.175116))
pad14 = body.newObject("PartDesign::Pad", "Pad013")
pad14.Profile = sketch21
pad14.Length = 13.590743

# Sketch on XY plane
sketch22 = body.newObject("Sketcher::SketchObject", "Sketch021")
sketch22.AttachmentSupport = (doc.getObject("XY_Plane"), [""])
sketch22.MapMode = "FlatFace"
add_polygon(sketch22, [(8.3, 30), (34, 30), (34, 32), (30, 32), (30, 37), (28.1, 37), (28.1, 32), (22.2, 32), (22.2, 37), (20.2, 37), (20.2, 32), (14.3, 32), (14.3, 37), (12.3, 37), (12.3, 32), (8.3, 32)])  # lines 0-15
sketch22.addConstraint(Sketcher.Constraint("Horizontal", 0))
sketch22.addConstraint(Sketcher.Constraint("Vertical", 1))
sketch22.addConstraint(Sketcher.Constraint("Horizontal", 2))
sketch22.addConstraint(Sketcher.Constraint("Vertical", 3))
sketch22.addConstraint(Sketcher.Constraint("Horizontal", 4))
sketch22.addConstraint(Sketcher.Constraint("Vertical", 5))
sketch22.addConstraint(Sketcher.Constraint("Horizontal", 6))
sketch22.addConstraint(Sketcher.Constraint("Vertical", 7))
sketch22.addConstraint(Sketcher.Constraint("Horizontal", 8))
sketch22.addConstraint(Sketcher.Constraint("Vertical", 9))
sketch22.addConstraint(Sketcher.Constraint("Horizontal", 10))
sketch22.addConstraint(Sketcher.Constraint("Vertical", 11))
sketch22.addConstraint(Sketcher.Constraint("Horizontal", 12))
sketch22.addConstraint(Sketcher.Constraint("Vertical", 13))
sketch22.addConstraint(Sketcher.Constraint("Horizontal", 14))
sketch22.addConstraint(Sketcher.Constraint("Vertical", 15))
sketch22.addConstraint(Sketcher.Constraint("Horizontal", 2, 2, 5, 2))
sketch22.addConstraint(Sketcher.Constraint("Horizontal", 4, 2, 7, 2))
sketch22.addConstraint(Sketcher.Constraint("Horizontal", 6, 2, 9, 2))
sketch22.addConstraint(Sketcher.Constraint("Horizontal", 8, 2, 11, 2))
sketch22.addConstraint(Sketcher.Constraint("Horizontal", 10, 2, 13, 2))
sketch22.addConstraint(Sketcher.Constraint("Equal", 6, 10))
sketch22.addConstraint(Sketcher.Constraint("Equal", 8, 12))
sketch22.addConstraint(Sketcher.Constraint("Equal", 2, 14))
sketch22.addConstraint(Sketcher.Constraint("Equal", 12, 1))
sketch22.addConstraint(Sketcher.Constraint("DistanceX", 2, 2, 2, 1, 4.0))
sketch22.addConstraint(Sketcher.Constraint("DistanceX", 8, 2, 8, 1, 2.0))
sketch22.addConstraint(Sketcher.Constraint("DistanceY", 3, 1, 3, 2, 5.0))
sketch22.addConstraint(Sketcher.Constraint("DistanceX", -1, 1, 0, 2, 34.0))
sketch22.addConstraint(Sketcher.Constraint("DistanceY", -1, 1, 0, 2, 30.0))
sketch22.addConstraint(Sketcher.Constraint("DistanceX", 6, 2, 6, 1, 5.89))
sketch22.addConstraint(Sketcher.Constraint("DistanceX", 0, 1, 0, 2, 25.727203))
pad15 = body.newObject("PartDesign::Pad", "Pad014")
pad15.Profile = sketch22
pad15.Length = 20

# Sketch on YZ plane
sketch23 = body.newObject("Sketcher::SketchObject", "Sketch022")
sketch23.AttachmentSupport = (doc.getObject("YZ_Plane"), [""])
sketch23.MapMode = "FlatFace"
sketch23.AttachmentOffset = App.Placement(App.Vector(0, 0, 12.272797), App.Rotation())
add_polygon(sketch23, [(32, 20), (37, 0), (37, 20)])  # lines 0-2
sketch23.addConstraint(Sketcher.Constraint("Vertical", 1))
sketch23.addConstraint(Sketcher.Constraint("Horizontal", 2))
sketch23.addConstraint(Sketcher.Constraint("PointOnObject", 0, 2, -1))
sketch23.addConstraint(Sketcher.Constraint("DistanceX", 2, 2, 2, 1, 5.0))
sketch23.addConstraint(Sketcher.Constraint("DistanceY", 1, 1, 1, 2, 20.0))
sketch23.addConstraint(Sketcher.Constraint("DistanceX", -1, 1, 0, 2, 37.0))
pocket8 = body.newObject("PartDesign::Pocket", "Pocket007")
pocket8.Profile = sketch23
pocket8.Length = 17.727203
pocket8.Reversed = True

# Sketch on YZ plane
sketch24 = body.newObject("Sketcher::SketchObject", "Sketch023")
sketch24.AttachmentSupport = (doc.getObject("YZ_Plane"), [""])
sketch24.MapMode = "FlatFace"
sketch24.AttachmentOffset = App.Placement(App.Vector(0, 0, 10.272797), App.Rotation())
add_polygon(sketch24, [(18.4, 0), (16, 0), (16, 3.6), (18.4, 3.6)])  # lines 0-3
sketch24.addConstraint(Sketcher.Constraint("Horizontal", 0))
sketch24.addConstraint(Sketcher.Constraint("Vertical", 1))
sketch24.addConstraint(Sketcher.Constraint("Horizontal", 2))
sketch24.addConstraint(Sketcher.Constraint("Vertical", 3))
sketch24.addConstraint(Sketcher.Constraint("PointOnObject", 0, 2, -1))
sketch24.addConstraint(Sketcher.Constraint("DistanceX", -1, 1, 0, 2, 16.0))
sketch24.addConstraint(Sketcher.Constraint("DistanceX", 0, 2, 0, 1, 2.443066))
sketch24.addConstraint(Sketcher.Constraint("DistanceY", 1, 1, 1, 2, 3.585817))
pad16 = body.newObject("PartDesign::Pad", "Pad015")
pad16.Profile = sketch24
pad16.Length = 2
pad16.Reversed = True

# Sketch on XY plane
sketch25 = body.newObject("Sketcher::SketchObject", "Sketch024")
sketch25.AttachmentSupport = (doc.getObject("XY_Plane"), [""])
sketch25.MapMode = "FlatFace"
sketch25.AttachmentOffset = App.Placement(App.Vector(0, 0, 0), App.Rotation())
add_polygon(sketch25, [(33.4, 26.5), (33.4, 21.7), (35, 21.7), (35, 26.5)])  # lines 0-3
sketch25.addConstraint(Sketcher.Constraint("Vertical", 0))
sketch25.addConstraint(Sketcher.Constraint("Horizontal", 1))
sketch25.addConstraint(Sketcher.Constraint("Vertical", 2))
sketch25.addConstraint(Sketcher.Constraint("Horizontal", 3))
sketch25.addConstraint(Sketcher.Constraint("DistanceX", 1, 1, 1, 2, 1.637082))
sketch25.addConstraint(Sketcher.Constraint("DistanceY", 0, 2, 0, 1, 4.811548))
sketch25.addConstraint(Sketcher.Constraint("DistanceX", -1, 1, 0, 2, 33.362589))
sketch25.addConstraint(Sketcher.Constraint("DistanceY", -1, 1, 0, 2, 21.721045))
pocket9 = body.newObject("PartDesign::Pocket", "Pocket008")
pocket9.Profile = sketch25
pocket9.Length = 6.290743
pocket9.Reversed = True

# Sketch on XY plane
sketch26 = body.newObject("Sketcher::SketchObject", "Sketch025")
sketch26.AttachmentSupport = (doc.getObject("XY_Plane"), [""])
sketch26.MapMode = "FlatFace"
sketch26.AttachmentOffset = App.Placement(App.Vector(0, 0, 0), App.Rotation())
add_polygon(sketch26, [(33.1, 12.8), (33.1, 8), (35, 8), (35, 12.8)])  # lines 0-3
sketch26.addConstraint(Sketcher.Constraint("Vertical", 0))
sketch26.addConstraint(Sketcher.Constraint("Horizontal", 1))
sketch26.addConstraint(Sketcher.Constraint("Vertical", 2))
sketch26.addConstraint(Sketcher.Constraint("Horizontal", 3))
sketch26.addConstraint(Sketcher.Constraint("DistanceY", 0, 2, 0, 1, 4.792301))
sketch26.addConstraint(Sketcher.Constraint("DistanceX", 1, 1, 1, 2, 1.862658))
sketch26.addConstraint(Sketcher.Constraint("DistanceX", -1, 1, 1, 2, 34.999671))
sketch26.addConstraint(Sketcher.Constraint("DistanceY", -1, 1, 2, 2, 12.772479))
pocket10 = body.newObject("PartDesign::Pocket", "Pocket009")
pocket10.Profile = sketch26
pocket10.Length = 3.590743
pocket10.Reversed = True

# Sketch on XY plane
sketch27 = body.newObject("Sketcher::SketchObject", "Sketch026")
sketch27.AttachmentSupport = (doc.getObject("XY_Plane"), [""])
sketch27.MapMode = "FlatFace"
add_polygon(sketch27, [(14.3, 2), (20.2, 2), (20.2, 0), (22.2, 0), (22.2, 2), (28, 2), (28, 0), (30, 0), (30, 2), (34, 2), (34, 4), (8.3, 4), (8.3, 2), (12.3, 2), (12.3, 0), (14.3, 0)])  # lines 0-15
sketch27.addConstraint(Sketcher.Constraint("Horizontal", 0))
sketch27.addConstraint(Sketcher.Constraint("Vertical", 1))
sketch27.addConstraint(Sketcher.Constraint("Horizontal", 2))
sketch27.addConstraint(Sketcher.Constraint("Vertical", 3))
sketch27.addConstraint(Sketcher.Constraint("Horizontal", 4))
sketch27.addConstraint(Sketcher.Constraint("Vertical", 5))
sketch27.addConstraint(Sketcher.Constraint("Horizontal", 6))
sketch27.addConstraint(Sketcher.Constraint("Vertical", 7))
sketch27.addConstraint(Sketcher.Constraint("Horizontal", 8))
sketch27.addConstraint(Sketcher.Constraint("Vertical", 9))
sketch27.addConstraint(Sketcher.Constraint("Horizontal", 10))
sketch27.addConstraint(Sketcher.Constraint("Vertical", 11))
sketch27.addConstraint(Sketcher.Constraint("Horizontal", 12))
sketch27.addConstraint(Sketcher.Constraint("Vertical", 13))
sketch27.addConstraint(Sketcher.Constraint("Horizontal", 14))
sketch27.addConstraint(Sketcher.Constraint("Vertical", 15))
sketch27.addConstraint(Sketcher.Constraint("PointOnObject", 1, 2, -1))
sketch27.addConstraint(Sketcher.Constraint("PointOnObject", 5, 2, -1))
sketch27.addConstraint(Sketcher.Constraint("PointOnObject", 13, 2, -1))
sketch27.addConstraint(Sketcher.Constraint("Horizontal", 0, 2, 3, 2))
sketch27.addConstraint(Sketcher.Constraint("Horizontal", 4, 2, 7, 2))
sketch27.addConstraint(Sketcher.Constraint("Horizontal", 8, 2, 11, 2))
sketch27.addConstraint(Sketcher.Constraint("Equal", 2, 6))
sketch27.addConstraint(Sketcher.Constraint("Equal", 8, 12))
sketch27.addConstraint(Sketcher.Constraint("Equal", 6, 14))
sketch27.addConstraint(Sketcher.Constraint("Equal", 14, 1))
sketch27.addConstraint(Sketcher.Constraint("Equal", 7, 9))
sketch27.addConstraint(Sketcher.Constraint("DistanceX", 2, 1, 2, 2, 2.0))
sketch27.addConstraint(Sketcher.Constraint("DistanceX", 8, 1, 8, 2, 4.0))
sketch27.addConstraint(Sketcher.Constraint("DistanceX", -1, 1, 4, 2, 28.0))
sketch27.addConstraint(Sketcher.Constraint("DistanceX", 0, 1, 0, 2, 5.89))
sketch27.addConstraint(Sketcher.Constraint("DistanceX", 4, 1, 4, 2, 5.837203))
pad17 = body.newObject("PartDesign::Pad", "Pad016")
pad17.Profile = sketch27
pad17.Length = 20

# Sketch on YZ plane
sketch28 = body.newObject("Sketcher::SketchObject", "Sketch027")
sketch28.AttachmentSupport = (doc.getObject("YZ_Plane"), [""])
sketch28.MapMode = "FlatFace"
sketch28.AttachmentOffset = App.Placement(App.Vector(0, 0, 30), App.Rotation())
add_polygon(sketch28, [(2, 20), (0, 0), (0, 20)])  # lines 0-2
sketch28.addConstraint(Sketcher.Constraint("Vertical", 1))
sketch28.addConstraint(Sketcher.Constraint("Horizontal", 2))
sketch28.addConstraint(Sketcher.Constraint("Coincident", 0, 2, -1, 1))
sketch28.addConstraint(Sketcher.Constraint("DistanceX", 2, 1, 2, 2, 2.0))
sketch28.addConstraint(Sketcher.Constraint("DistanceY", 1, 1, 1, 2, 20.0))
pocket11 = body.newObject("PartDesign::Pocket", "Pocket010")
pocket11.Profile = sketch28
pocket11.Length = 17.727203

doc.recompute()
